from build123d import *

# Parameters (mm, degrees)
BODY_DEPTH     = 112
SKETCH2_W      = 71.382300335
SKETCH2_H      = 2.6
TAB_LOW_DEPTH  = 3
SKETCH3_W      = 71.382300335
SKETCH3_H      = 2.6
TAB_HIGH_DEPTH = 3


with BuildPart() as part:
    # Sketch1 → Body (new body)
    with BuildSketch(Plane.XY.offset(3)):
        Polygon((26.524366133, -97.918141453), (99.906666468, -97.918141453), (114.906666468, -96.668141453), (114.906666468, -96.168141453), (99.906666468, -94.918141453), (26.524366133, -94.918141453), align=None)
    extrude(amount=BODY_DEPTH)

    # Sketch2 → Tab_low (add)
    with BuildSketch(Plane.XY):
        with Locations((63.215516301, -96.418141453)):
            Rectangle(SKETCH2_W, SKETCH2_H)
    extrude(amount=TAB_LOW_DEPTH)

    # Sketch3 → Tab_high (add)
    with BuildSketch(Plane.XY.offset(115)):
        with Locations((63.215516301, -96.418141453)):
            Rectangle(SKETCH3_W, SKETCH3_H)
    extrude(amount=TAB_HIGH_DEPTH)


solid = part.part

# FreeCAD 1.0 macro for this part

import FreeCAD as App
import Part
import Sketcher

V = App.Vector

doc = App.newDocument("Part")
body = doc.addObject("PartDesign::Body", "Body")

# Sketch on XY plane
sketch1 = doc.addObject("Sketcher::SketchObject", "Sketch")
body.addObject(sketch1)
sketch1.AttachmentSupport = (doc.XY_Plane, [""])
sketch1.MapMode = "FlatFace"
sketch1.AttachmentOffset = App.Placement(V(0, 0, 3), App.Rotation())
sketch1.addGeometry(Part.LineSegment(V(26.5, -97.9, 0), V(99.9, -97.9, 0)), False)
sketch1.addGeometry(Part.LineSegment(V(99.9, -97.9, 0), V(114.9, -96.7, 0)), False)
sketch1.addGeometry(Part.LineSegment(V(114.9, -96.7, 0), V(114.9, -96.2, 0)), False)
sketch1.addGeometry(Part.LineSegment(V(114.9, -96.2, 0), V(99.9, -94.9, 0)), False)
sketch1.addGeometry(Part.LineSegment(V(99.9, -94.9, 0), V(26.5, -94.9, 0)), False)
sketch1.addGeometry(Part.LineSegment(V(26.5, -94.9, 0), V(26.5, -97.9, 0)), False)
sketch1.addConstraint(Sketcher.Constraint("Coincident", 0, 2, 1, 1))
sketch1.addConstraint(Sketcher.Constraint("Coincident", 1, 2, 2, 1))
sketch1.addConstraint(Sketcher.Constraint("Coincident", 2, 2, 3, 1))
sketch1.addConstraint(Sketcher.Constraint("Coincident", 3, 2, 4, 1))
sketch1.addConstraint(Sketcher.Constraint("Coincident", 4, 2, 5, 1))
sketch1.addConstraint(Sketcher.Constraint("Coincident", 5, 2, 0, 1))
sketch1.addConstraint(Sketcher.Constraint("Horizontal", 0))
sketch1.addConstraint(Sketcher.Constraint("Vertical", 2))
sketch1.addConstraint(Sketcher.Constraint("Horizontal", 4))
sketch1.addConstraint(Sketcher.Constraint("Vertical", 5))
sketch1.addConstraint(Sketcher.Constraint("Vertical", 0, 2, 3, 2))
sketch1.addConstraint(Sketcher.Constraint("Equal", 1, 3))
sketch1.addConstraint(Sketcher.Constraint("DistanceY", 5, 2, 5, 1, 3.0))
sketch1.addConstraint(Sketcher.Constraint("DistanceY", 2, 1, 2, 2, 0.5))
sketch1.addConstraint(Sketcher.Constraint("DistanceX", 0, 2, 1, 2, 15.0))
sketch1.addConstraint(Sketcher.Constraint("DistanceX", 0, 1, 0, 2, 73.3823))
sketch1.addConstraint(Sketcher.Constraint("DistanceY", 0, 2, -1, 1, 97.918141))
sketch1.addConstraint(Sketcher.Constraint("DistanceX", -1, 1, 0, 2, 99.906666))
pad1 = doc.addObject("PartDesign::Pad", "Pad")
body.addObject(pad1)
pad1.Profile = sketch1
pad1.Length = 112

# Sketch on XY plane
sketch2 = doc.addObject("Sketcher::SketchObject", "Sketch001")
body.addObject(sketch2)
sketch2.AttachmentSupport = (doc.XY_Plane, [""])
sketch2.MapMode = "FlatFace"
sketch2.addGeometry(Part.LineSegment(V(27.5, -95.1, 0), V(27.5, -97.7, 0)), False)
sketch2.addGeometry(Part.LineSegment(V(27.5, -97.7, 0), V(98.9, -97.7, 0)), False)
sketch2.addGeometry(Part.LineSegment(V(98.9, -97.7, 0), V(98.9, -95.1, 0)), False)
sketch2.addGeometry(Part.LineSegment(V(98.9, -95.1, 0), V(27.5, -95.1, 0)), False)
sketch2.addConstraint(Sketcher.Constraint("Coincident", 0, 2, 1, 1))
sketch2.addConstraint(Sketcher.Constraint("Coincident", 1, 2, 2, 1))
sketch2.addConstraint(Sketcher.Constraint("Coincident", 2, 2, 3, 1))
sketch2.addConstraint(Sketcher.Constraint("Coincident", 3, 2, 0, 1))
sketch2.addConstraint(Sketcher.Constraint("Vertical", 0))
sketch2.addConstraint(Sketcher.Constraint("Horizontal", 1))
sketch2.addConstraint(Sketcher.Constraint("Vertical", 2))
sketch2.addConstraint(Sketcher.Constraint("Horizontal", 3))
sketch2.addConstraint(Sketcher.Constraint("DistanceY", 0, 2, 0, 1, 2.6))
sketch2.addConstraint(Sketcher.Constraint("DistanceX", 1, 1, 1, 2, 71.3823))
sketch2.addConstraint(Sketcher.Constraint("DistanceY", 0, 2, -1, 1, 97.718141))
sketch2.addConstraint(Sketcher.Constraint("DistanceX", -1, 1, 0, 2, 27.524366))
pad2 = doc.addObject("PartDesign::Pad", "Pad001")
body.addObject(pad2)
pad2.Profile = sketch2
pad2.Length = 3

# Sketch on XY plane
sketch3 = doc.addObject("Sketcher::SketchObject", "Sketch002")
body.addObject(sketch3)
sketch3.AttachmentSupport = (doc.XY_Plane, [""])
sketch3.MapMode = "FlatFace"
sketch3.AttachmentOffset = App.Placement(V(0, 0, 115), App.Rotation())
sketch3.addGeometry(Part.LineSegment(V(27.5, -95.1, 0), V(27.5, -97.7, 0)), False)
sketch3.addGeometry(Part.LineSegment(V(27.5, -97.7, 0), V(98.9, -97.7, 0)), False)
sketch3.addGeometry(Part.LineSegment(V(98.9, -97.7, 0), V(98.9, -95.1, 0)), False)
sketch3.addGeometry(Part.LineSegment(V(98.9, -95.1, 0), V(27.5, -95.1, 0)), False)
sketch3.addConstraint(Sketcher.Constraint("Coincident", 0, 2, 1, 1))
sketch3.addConstraint(Sketcher.Constraint("Coincident", 1, 2, 2, 1))
sketch3.addConstraint(Sketcher.Constraint("Coincident", 2, 2, 3, 1))
sketch3.addConstraint(Sketcher.Constraint("Coincident", 3, 2, 0, 1))
sketch3.addConstraint(Sketcher.Constraint("Vertical", 0))
sketch3.addConstraint(Sketcher.Constraint("Horizontal", 1))
sketch3.addConstraint(Sketcher.Constraint("Vertical", 2))
sketch3.addConstraint(Sketcher.Constraint("Horizontal", 3))
sketch3.addConstraint(Sketcher.Constraint("DistanceY", 0, 2, 0, 1, 2.6))
sketch3.addConstraint(Sketcher.Constraint("DistanceX", 1, 1, 1, 2, 71.3823))
sketch3.addConstraint(Sketcher.Constraint("DistanceY", 0, 2, -1, 1, 97.718141))
sketch3.addConstraint(Sketcher.Constraint("DistanceX", -1, 1, 0, 2, 27.524366))
pad3 = doc.addObject("PartDesign::Pad", "Pad002")
body.addObject(pad3)
pad3.Profile = sketch3
pad3.Length = 3

doc.recompute()
